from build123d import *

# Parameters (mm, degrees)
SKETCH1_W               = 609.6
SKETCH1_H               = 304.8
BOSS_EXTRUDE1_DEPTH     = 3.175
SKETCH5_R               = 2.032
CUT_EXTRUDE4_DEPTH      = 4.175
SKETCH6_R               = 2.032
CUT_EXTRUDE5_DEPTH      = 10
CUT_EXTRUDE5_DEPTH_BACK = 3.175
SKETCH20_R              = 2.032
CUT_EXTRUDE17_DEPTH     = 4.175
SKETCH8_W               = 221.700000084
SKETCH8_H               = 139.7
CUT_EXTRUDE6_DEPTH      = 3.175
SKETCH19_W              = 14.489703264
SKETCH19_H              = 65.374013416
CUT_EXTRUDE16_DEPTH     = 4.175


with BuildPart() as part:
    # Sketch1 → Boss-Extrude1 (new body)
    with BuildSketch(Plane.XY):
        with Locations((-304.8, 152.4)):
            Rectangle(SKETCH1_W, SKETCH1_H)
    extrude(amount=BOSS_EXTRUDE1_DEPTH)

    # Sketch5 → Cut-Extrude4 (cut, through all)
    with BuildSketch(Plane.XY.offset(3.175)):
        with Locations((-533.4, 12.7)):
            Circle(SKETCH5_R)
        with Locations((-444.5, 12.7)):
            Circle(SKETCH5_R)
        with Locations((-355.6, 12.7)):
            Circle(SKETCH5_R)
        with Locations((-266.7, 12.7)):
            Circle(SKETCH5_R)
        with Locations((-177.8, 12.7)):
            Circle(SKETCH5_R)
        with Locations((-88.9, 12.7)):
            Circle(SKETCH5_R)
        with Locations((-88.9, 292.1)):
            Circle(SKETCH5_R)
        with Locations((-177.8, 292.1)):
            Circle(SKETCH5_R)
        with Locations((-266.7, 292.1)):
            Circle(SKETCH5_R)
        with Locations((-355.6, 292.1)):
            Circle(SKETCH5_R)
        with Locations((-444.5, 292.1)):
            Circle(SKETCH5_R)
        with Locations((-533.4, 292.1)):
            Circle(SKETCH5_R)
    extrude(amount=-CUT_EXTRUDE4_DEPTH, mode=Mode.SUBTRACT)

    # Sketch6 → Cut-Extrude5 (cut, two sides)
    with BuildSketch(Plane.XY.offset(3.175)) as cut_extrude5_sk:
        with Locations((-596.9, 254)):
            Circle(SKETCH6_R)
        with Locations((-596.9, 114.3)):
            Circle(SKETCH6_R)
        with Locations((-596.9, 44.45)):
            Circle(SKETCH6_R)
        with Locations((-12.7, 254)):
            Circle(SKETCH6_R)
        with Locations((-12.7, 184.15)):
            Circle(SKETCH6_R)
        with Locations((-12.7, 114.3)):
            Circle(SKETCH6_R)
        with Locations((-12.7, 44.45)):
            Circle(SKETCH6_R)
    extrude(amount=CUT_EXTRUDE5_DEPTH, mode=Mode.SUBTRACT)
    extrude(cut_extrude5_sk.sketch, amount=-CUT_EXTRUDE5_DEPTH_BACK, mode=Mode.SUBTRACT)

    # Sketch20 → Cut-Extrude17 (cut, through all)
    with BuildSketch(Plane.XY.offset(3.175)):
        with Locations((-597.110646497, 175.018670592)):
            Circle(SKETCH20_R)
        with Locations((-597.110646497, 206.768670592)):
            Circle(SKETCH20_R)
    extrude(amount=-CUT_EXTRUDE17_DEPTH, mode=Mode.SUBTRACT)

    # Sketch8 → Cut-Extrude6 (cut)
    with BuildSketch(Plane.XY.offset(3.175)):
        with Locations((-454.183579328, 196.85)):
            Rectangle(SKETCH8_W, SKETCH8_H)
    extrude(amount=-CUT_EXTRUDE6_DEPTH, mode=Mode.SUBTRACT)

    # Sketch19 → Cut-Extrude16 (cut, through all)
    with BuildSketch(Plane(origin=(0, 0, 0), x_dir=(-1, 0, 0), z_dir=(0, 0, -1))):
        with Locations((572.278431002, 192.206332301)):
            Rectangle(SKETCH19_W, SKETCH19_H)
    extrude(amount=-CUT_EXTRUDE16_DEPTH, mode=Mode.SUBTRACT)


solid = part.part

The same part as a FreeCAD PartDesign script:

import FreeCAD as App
import Part
import Sketcher
from FreeCAD import Vector
Q = App.Units.Quantity

doc = App.newDocument("Part")
body = doc.addObject("PartDesign::Body", "Body")

# Sketch on XY plane
sketch1 = body.newObject("Sketcher::SketchObject", "Sketch")
sketch1.AttachmentSupport = (doc.getObject("XY_Plane"), [""])
sketch1.MapMode = "FlatFace"
sketch1.addGeometry([
    Part.LineSegment(Vector(-610, 305, 0), Vector(-610, 0, 0)),
    Part.LineSegment(Vector(-610, 0, 0), Vector(0, 0, 0)),
    Part.LineSegment(Vector(0, 0, 0), Vector(0, 305, 0)),
    Part.LineSegment(Vector(0, 305, 0), Vector(-610, 305, 0)),
], False)
sketch1.addConstraint([
    Sketcher.Constraint("Coincident", 0, 2, 1, 1),
    Sketcher.Constraint("Coincident", 1, 2, 2, 1),
    Sketcher.Constraint("Coincident", 2, 2, 3, 1),
    Sketcher.Constraint("Coincident", 3, 2, 0, 1),
    Sketcher.Constraint("Vertical", 0),
    Sketcher.Constraint("Horizontal", 1),
    Sketcher.Constraint("Vertical", 2),
    Sketcher.Constraint("Horizontal", 3),
    Sketcher.Constraint("Coincident", 1, 2, -1, 1),
    Sketcher.Constraint("DistanceX", 1, 1, 1, 2, Q("24 in")),
    Sketcher.Constraint("DistanceY", 0, 2, 0, 1, Q("12 in")),
])
pad1 = body.newObject("PartDesign::Pad", "Pad")
pad1.Profile = sketch1
pad1.Length = Q("0.125 in")

# Sketch on XY plane
sketch2 = body.newObject("Sketcher::SketchObject", "Sketch001")
sketch2.AttachmentSupport = (doc.getObject("XY_Plane"), [""])
sketch2.MapMode = "FlatFace"
sketch2.AttachmentOffset = App.Placement(Vector(0, 0, 0.125 * 25.4), App.Rotation())
sketch2.addGeometry([
    Part.Circle(Vector(-533.4, 12.7, 0), Vector(0, 0, 1), 2),  # 0
    Part.Circle(Vector(-444.5, 12.7, 0), Vector(0, 0, 1), 2),  # 1
    Part.Circle(Vector(-355.6, 12.7, 0), Vector(0, 0, 1), 2),  # 2
    Part.Circle(Vector(-266.7, 12.7, 0), Vector(0, 0, 1), 2),  # 3
    Part.Circle(Vector(-177.8, 12.7, 0), Vector(0, 0, 1), 2),  # 4
    Part.Circle(Vector(-88.9, 12.7, 0), Vector(0, 0, 1), 2),  # 5
    Part.Circle(Vector(-88.9, 292.1, 0), Vector(0, 0, 1), 2),  # 6
    Part.Circle(Vector(-177.8, 292.1, 0), Vector(0, 0, 1), 2),  # 7
    Part.Circle(Vector(-266.7, 292.1, 0), Vector(0, 0, 1), 2),  # 8
    Part.Circle(Vector(-355.6, 292.1, 0), Vector(0, 0, 1), 2),  # 9
    Part.Circle(Vector(-444.5, 292.1, 0), Vector(0, 0, 1), 2),  # 10
    Part.Circle(Vector(-533.4, 292.1, 0), Vector(0, 0, 1), 2),  # 11
], False)
sketch2.addConstraint([
    Sketcher.Constraint("Equal", 0, 1),
    Sketcher.Constraint("Equal", 1, 2),
    Sketcher.Constraint("Equal", 2, 3),
    Sketcher.Constraint("Equal", 3, 4),
    Sketcher.Constraint("Equal", 4, 5),
    Sketcher.Constraint("Equal", 5, 6),
    Sketcher.Constraint("Equal", 6, 7),
    Sketcher.Constraint("Equal", 7, 8),
    Sketcher.Constraint("Equal", 8, 9),
    Sketcher.Constraint("Equal", 9, 10),
    Sketcher.Constraint("Equal", 10, 11),
    Sketcher.Constraint("Horizontal", 0, 3, 1, 3),
    Sketcher.Constraint("Horizontal", 1, 3, 2, 3),
    Sketcher.Constraint("Horizontal", 2, 3, 3, 3),
    Sketcher.Constraint("Horizontal", 3, 3, 4, 3),
    Sketcher.Constraint("Horizontal", 4, 3, 5, 3),
    Sketcher.Constraint("Horizontal", 6, 3, 7, 3),
    Sketcher.Constraint("Horizontal", 7, 3, 8, 3),
    Sketcher.Constraint("Horizontal", 8, 3, 9, 3),
    Sketcher.Constraint("Horizontal", 9, 3, 10, 3),
    Sketcher.Constraint("Horizontal", 10, 3, 11, 3),
    Sketcher.Constraint("Vertical", 5, 3, 6, 3),
    Sketcher.Constraint("Vertical", 4, 3, 7, 3),
    Sketcher.Constraint("Vertical", 3, 3, 8, 3),
    Sketcher.Constraint("Vertical", 2, 3, 9, 3),
    Sketcher.Constraint("Vertical", 1, 3, 10, 3),
    Sketcher.Constraint("Vertical", 0, 3, 11, 3),
    Sketcher.Constraint("Diameter", 0, Q("0.16 in")),
    Sketcher.Constraint("DistanceX", 0, 3, -1, 1, Q("21 in")),
    Sketcher.Constraint("DistanceX", 2, 3, -1, 1, Q("14 in")),
    Sketcher.Constraint("DistanceX", 4, 3, -1, 1, Q("7 in")),
    Sketcher.Constraint("DistanceX", 1, 3, 3, 3, Q("7 in")),
    Sketcher.Constraint("DistanceX", 3, 3, 5, 3, Q("7 in")),
    Sketcher.Constraint("DistanceY", 5, 3, 6, 3, Q("11 in")),
    Sketcher.Constraint("DistanceY", -1, 1, 0, 3, Q("0.5 in")),
    Sketcher.Constraint("DistanceX", 1, 3, -1, 1, Q("17.5 in")),
])
pocket1 = body.newObject("PartDesign::Pocket", "Pocket")
pocket1.Profile = sketch2
pocket1.Type = "ThroughAll"

# Sketch on XY plane
sketch3 = body.newObject("Sketcher::SketchObject", "Sketch002")
sketch3.AttachmentSupport = (doc.getObject("XY_Plane"), [""])
sketch3.MapMode = "FlatFace"
sketch3.AttachmentOffset = App.Placement(Vector(0, 0, 0.125 * 25.4), App.Rotation())
sketch3.addGeometry([
    Part.Circle(Vector(-596.9, 254, 0), Vector(0, 0, 1), 2),  # 0
    Part.Circle(Vector(-596.9, 114.3, 0), Vector(0, 0, 1), 2),  # 1
    Part.Circle(Vector(-596.9, 44.5, 0), Vector(0, 0, 1), 2),  # 2
    Part.Circle(Vector(-12.7, 254, 0), Vector(0, 0, 1), 2),  # 3
    Part.Circle(Vector(-12.7, 184.2, 0), Vector(0, 0, 1), 2),  # 4
    Part.Circle(Vector(-12.7, 114.3, 0), Vector(0, 0, 1), 2),  # 5
    Part.Circle(Vector(-12.7, 44.5, 0), Vector(0, 0, 1), 2),  # 6
], False)
sketch3.addConstraint([
    Sketcher.Constraint("Equal", 0, 1),
    Sketcher.Constraint("Equal", 1, 2),
    Sketcher.Constraint("Equal", 2, 3),
    Sketcher.Constraint("Equal", 3, 4),
    Sketcher.Constraint("Equal", 4, 5),
    Sketcher.Constraint("Equal", 5, 6),
    Sketcher.Constraint("Horizontal", 0, 3, 3, 3),
    Sketcher.Constraint("Horizontal", 1, 3, 5, 3),
    Sketcher.Constraint("Horizontal", 2, 3, 6, 3),
    Sketcher.Constraint("Vertical", 0, 3, 1, 3),
    Sketcher.Constraint("Vertical", 1, 3, 2, 3),
    Sketcher.Constraint("Vertical", 3, 3, 4, 3),
    Sketcher.Constraint("Vertical", 4, 3, 5, 3),
    Sketcher.Constraint("Vertical", 5, 3, 6, 3),
    Sketcher.Constraint("Diameter", 0, Q("0.16 in")),
    Sketcher.Constraint("DistanceY", -1, 1, 0, 3, Q("10 in")),
    Sketcher.Constraint("DistanceX", 0, 3, 3, 3, Q("23 in")),
    Sketcher.Constraint("DistanceX", 0, 3, -1, 1, Q("23.5 in")),
    Sketcher.Constraint("DistanceY", -1, 1, 1, 3, Q("4.5 in")),
    Sketcher.Constraint("DistanceY", 2, 3, 4, 3, Q("5.5 in")),
    Sketcher.Constraint("DistanceY", -1, 1, 2, 3, Q("1.75 in")),
])
pocket2 = body.newObject("PartDesign::Pocket", "Pocket001")
pocket2.Profile = sketch3
pocket2.Type = "ThroughAll"
pocket2.Midplane = True

# Sketch on XY plane
sketch4 = body.newObject("Sketcher::SketchObject", "Sketch003")
sketch4.AttachmentSupport = (doc.getObject("XY_Plane"), [""])
sketch4.MapMode = "FlatFace"
sketch4.AttachmentOffset = App.Placement(Vector(0, 0, 0.125 * 25.4), App.Rotation())
sketch4.addGeometry([
    Part.Circle(Vector(-597.1, 175, 0), Vector(0, 0, 1), 2),
    Part.Circle(Vector(-597.1, 206.8, 0), Vector(0, 0, 1), 2),
], False)
sketch4.addConstraint([
    Sketcher.Constraint("Equal", 0, 1),
    Sketcher.Constraint("Vertical", 0, 3, 1, 3),
    Sketcher.Constraint("Diameter", 0, Q("0.16 in")),
    Sketcher.Constraint("DistanceY", 0, 3, 1, 3, Q("1.25 in")),
    Sketcher.Constraint("DistanceY", -1, 1, 0, 3, Q("175.018671 mm")),
    Sketcher.Constraint("DistanceX", 0, 3, -1, 1, Q("597.110646 mm")),
])
pocket3 = body.newObject("PartDesign::Pocket", "Pocket002")
pocket3.Profile = sketch4
pocket3.Type = "ThroughAll"

# Sketch on XY plane
sketch5 = body.newObject("Sketcher::SketchObject", "Sketch004")
sketch5.AttachmentSupport = (doc.getObject("XY_Plane"), [""])
sketch5.MapMode = "FlatFace"
sketch5.AttachmentOffset = App.Placement(Vector(0, 0, 0.125 * 25.4), App.Rotation())
sketch5.addGeometry([
    Part.LineSegment(Vector(-565, 267, 0), Vector(-565, 127, 0)),
    Part.LineSegment(Vector(-565, 127, 0), Vector(-343, 127, 0)),
    Part.LineSegment(Vector(-343, 127, 0), Vector(-343, 267, 0)),
    Part.LineSegment(Vector(-343, 267, 0), Vector(-565, 267, 0)),
], False)
sketch5.addConstraint([
    Sketcher.Constraint("Coincident", 0, 2, 1, 1),
    Sketcher.Constraint("Coincident", 1, 2, 2, 1),
    Sketcher.Constraint("Coincident", 2, 2, 3, 1),
    Sketcher.Constraint("Coincident", 3, 2, 0, 1),
    Sketcher.Constraint("Vertical", 0),
    Sketcher.Constraint("Horizontal", 1),
    Sketcher.Constraint("Vertical", 2),
    Sketcher.Constraint("Horizontal", 3),
    Sketcher.Constraint("DistanceY", 0, 2, 0, 1, Q("5.5 in")),
    Sketcher.Constraint("DistanceY", -1, 1, 0, 2, Q("5 in")),
    Sketcher.Constraint("DistanceX", 1, 1, 1, 2, Q("221.7 mm")),
    Sketcher.Constraint("DistanceX", 0, 2, -1, 1, Q("565.033579 mm")),
])
pocket4 = body.newObject("PartDesign::Pocket", "Pocket003")
pocket4.Profile = sketch5
pocket4.Length = Q("0.125 in")

# Sketch on XY plane
sketch6 = body.newObject("Sketcher::SketchObject", "Sketch005")
sketch6.AttachmentSupport = (doc.getObject("XY_Plane"), [""])
sketch6.MapMode = "FlatFace"
sketch6.addGeometry([
    Part.LineSegment(Vector(-565, 225, 0), Vector(-565, 160, 0)),
    Part.LineSegment(Vector(-565, 160, 0), Vector(-580, 160, 0)),
    Part.LineSegment(Vector(-580, 160, 0), Vector(-580, 225, 0)),
    Part.LineSegment(Vector(-580, 225, 0), Vector(-565, 225, 0)),
], False)
sketch6.addConstraint([
    Sketcher.Constraint("Coincident", 0, 2, 1, 1),
    Sketcher.Constraint("Coincident", 1, 2, 2, 1),
    Sketcher.Constraint("Coincident", 2, 2, 3, 1),
    Sketcher.Constraint("Coincident", 3, 2, 0, 1),
    Sketcher.Constraint("Vertical", 0),
    Sketcher.Constraint("Horizontal", 1),
    Sketcher.Constraint("Vertical", 2),
    Sketcher.Constraint("Horizontal", 3),
    Sketcher.Constraint("DistanceX", 1, 2, 1, 1, Q("14.489703 mm")),
    Sketcher.Constraint("DistanceY", 0, 2, 0, 1, Q("65.374013 mm")),
    Sketcher.Constraint("DistanceX", 0, 2, -1, 1, Q("565.033579 mm")),
    Sketcher.Constraint("DistanceY", -1, 1, 2, 2, Q("224.893339 mm")),
])
pocket5 = body.newObject("PartDesign::Pocket", "Pocket004")
pocket5.Profile = sketch6
pocket5.Type = "ThroughAll"
pocket5.Reversed = True

doc.recompute()
